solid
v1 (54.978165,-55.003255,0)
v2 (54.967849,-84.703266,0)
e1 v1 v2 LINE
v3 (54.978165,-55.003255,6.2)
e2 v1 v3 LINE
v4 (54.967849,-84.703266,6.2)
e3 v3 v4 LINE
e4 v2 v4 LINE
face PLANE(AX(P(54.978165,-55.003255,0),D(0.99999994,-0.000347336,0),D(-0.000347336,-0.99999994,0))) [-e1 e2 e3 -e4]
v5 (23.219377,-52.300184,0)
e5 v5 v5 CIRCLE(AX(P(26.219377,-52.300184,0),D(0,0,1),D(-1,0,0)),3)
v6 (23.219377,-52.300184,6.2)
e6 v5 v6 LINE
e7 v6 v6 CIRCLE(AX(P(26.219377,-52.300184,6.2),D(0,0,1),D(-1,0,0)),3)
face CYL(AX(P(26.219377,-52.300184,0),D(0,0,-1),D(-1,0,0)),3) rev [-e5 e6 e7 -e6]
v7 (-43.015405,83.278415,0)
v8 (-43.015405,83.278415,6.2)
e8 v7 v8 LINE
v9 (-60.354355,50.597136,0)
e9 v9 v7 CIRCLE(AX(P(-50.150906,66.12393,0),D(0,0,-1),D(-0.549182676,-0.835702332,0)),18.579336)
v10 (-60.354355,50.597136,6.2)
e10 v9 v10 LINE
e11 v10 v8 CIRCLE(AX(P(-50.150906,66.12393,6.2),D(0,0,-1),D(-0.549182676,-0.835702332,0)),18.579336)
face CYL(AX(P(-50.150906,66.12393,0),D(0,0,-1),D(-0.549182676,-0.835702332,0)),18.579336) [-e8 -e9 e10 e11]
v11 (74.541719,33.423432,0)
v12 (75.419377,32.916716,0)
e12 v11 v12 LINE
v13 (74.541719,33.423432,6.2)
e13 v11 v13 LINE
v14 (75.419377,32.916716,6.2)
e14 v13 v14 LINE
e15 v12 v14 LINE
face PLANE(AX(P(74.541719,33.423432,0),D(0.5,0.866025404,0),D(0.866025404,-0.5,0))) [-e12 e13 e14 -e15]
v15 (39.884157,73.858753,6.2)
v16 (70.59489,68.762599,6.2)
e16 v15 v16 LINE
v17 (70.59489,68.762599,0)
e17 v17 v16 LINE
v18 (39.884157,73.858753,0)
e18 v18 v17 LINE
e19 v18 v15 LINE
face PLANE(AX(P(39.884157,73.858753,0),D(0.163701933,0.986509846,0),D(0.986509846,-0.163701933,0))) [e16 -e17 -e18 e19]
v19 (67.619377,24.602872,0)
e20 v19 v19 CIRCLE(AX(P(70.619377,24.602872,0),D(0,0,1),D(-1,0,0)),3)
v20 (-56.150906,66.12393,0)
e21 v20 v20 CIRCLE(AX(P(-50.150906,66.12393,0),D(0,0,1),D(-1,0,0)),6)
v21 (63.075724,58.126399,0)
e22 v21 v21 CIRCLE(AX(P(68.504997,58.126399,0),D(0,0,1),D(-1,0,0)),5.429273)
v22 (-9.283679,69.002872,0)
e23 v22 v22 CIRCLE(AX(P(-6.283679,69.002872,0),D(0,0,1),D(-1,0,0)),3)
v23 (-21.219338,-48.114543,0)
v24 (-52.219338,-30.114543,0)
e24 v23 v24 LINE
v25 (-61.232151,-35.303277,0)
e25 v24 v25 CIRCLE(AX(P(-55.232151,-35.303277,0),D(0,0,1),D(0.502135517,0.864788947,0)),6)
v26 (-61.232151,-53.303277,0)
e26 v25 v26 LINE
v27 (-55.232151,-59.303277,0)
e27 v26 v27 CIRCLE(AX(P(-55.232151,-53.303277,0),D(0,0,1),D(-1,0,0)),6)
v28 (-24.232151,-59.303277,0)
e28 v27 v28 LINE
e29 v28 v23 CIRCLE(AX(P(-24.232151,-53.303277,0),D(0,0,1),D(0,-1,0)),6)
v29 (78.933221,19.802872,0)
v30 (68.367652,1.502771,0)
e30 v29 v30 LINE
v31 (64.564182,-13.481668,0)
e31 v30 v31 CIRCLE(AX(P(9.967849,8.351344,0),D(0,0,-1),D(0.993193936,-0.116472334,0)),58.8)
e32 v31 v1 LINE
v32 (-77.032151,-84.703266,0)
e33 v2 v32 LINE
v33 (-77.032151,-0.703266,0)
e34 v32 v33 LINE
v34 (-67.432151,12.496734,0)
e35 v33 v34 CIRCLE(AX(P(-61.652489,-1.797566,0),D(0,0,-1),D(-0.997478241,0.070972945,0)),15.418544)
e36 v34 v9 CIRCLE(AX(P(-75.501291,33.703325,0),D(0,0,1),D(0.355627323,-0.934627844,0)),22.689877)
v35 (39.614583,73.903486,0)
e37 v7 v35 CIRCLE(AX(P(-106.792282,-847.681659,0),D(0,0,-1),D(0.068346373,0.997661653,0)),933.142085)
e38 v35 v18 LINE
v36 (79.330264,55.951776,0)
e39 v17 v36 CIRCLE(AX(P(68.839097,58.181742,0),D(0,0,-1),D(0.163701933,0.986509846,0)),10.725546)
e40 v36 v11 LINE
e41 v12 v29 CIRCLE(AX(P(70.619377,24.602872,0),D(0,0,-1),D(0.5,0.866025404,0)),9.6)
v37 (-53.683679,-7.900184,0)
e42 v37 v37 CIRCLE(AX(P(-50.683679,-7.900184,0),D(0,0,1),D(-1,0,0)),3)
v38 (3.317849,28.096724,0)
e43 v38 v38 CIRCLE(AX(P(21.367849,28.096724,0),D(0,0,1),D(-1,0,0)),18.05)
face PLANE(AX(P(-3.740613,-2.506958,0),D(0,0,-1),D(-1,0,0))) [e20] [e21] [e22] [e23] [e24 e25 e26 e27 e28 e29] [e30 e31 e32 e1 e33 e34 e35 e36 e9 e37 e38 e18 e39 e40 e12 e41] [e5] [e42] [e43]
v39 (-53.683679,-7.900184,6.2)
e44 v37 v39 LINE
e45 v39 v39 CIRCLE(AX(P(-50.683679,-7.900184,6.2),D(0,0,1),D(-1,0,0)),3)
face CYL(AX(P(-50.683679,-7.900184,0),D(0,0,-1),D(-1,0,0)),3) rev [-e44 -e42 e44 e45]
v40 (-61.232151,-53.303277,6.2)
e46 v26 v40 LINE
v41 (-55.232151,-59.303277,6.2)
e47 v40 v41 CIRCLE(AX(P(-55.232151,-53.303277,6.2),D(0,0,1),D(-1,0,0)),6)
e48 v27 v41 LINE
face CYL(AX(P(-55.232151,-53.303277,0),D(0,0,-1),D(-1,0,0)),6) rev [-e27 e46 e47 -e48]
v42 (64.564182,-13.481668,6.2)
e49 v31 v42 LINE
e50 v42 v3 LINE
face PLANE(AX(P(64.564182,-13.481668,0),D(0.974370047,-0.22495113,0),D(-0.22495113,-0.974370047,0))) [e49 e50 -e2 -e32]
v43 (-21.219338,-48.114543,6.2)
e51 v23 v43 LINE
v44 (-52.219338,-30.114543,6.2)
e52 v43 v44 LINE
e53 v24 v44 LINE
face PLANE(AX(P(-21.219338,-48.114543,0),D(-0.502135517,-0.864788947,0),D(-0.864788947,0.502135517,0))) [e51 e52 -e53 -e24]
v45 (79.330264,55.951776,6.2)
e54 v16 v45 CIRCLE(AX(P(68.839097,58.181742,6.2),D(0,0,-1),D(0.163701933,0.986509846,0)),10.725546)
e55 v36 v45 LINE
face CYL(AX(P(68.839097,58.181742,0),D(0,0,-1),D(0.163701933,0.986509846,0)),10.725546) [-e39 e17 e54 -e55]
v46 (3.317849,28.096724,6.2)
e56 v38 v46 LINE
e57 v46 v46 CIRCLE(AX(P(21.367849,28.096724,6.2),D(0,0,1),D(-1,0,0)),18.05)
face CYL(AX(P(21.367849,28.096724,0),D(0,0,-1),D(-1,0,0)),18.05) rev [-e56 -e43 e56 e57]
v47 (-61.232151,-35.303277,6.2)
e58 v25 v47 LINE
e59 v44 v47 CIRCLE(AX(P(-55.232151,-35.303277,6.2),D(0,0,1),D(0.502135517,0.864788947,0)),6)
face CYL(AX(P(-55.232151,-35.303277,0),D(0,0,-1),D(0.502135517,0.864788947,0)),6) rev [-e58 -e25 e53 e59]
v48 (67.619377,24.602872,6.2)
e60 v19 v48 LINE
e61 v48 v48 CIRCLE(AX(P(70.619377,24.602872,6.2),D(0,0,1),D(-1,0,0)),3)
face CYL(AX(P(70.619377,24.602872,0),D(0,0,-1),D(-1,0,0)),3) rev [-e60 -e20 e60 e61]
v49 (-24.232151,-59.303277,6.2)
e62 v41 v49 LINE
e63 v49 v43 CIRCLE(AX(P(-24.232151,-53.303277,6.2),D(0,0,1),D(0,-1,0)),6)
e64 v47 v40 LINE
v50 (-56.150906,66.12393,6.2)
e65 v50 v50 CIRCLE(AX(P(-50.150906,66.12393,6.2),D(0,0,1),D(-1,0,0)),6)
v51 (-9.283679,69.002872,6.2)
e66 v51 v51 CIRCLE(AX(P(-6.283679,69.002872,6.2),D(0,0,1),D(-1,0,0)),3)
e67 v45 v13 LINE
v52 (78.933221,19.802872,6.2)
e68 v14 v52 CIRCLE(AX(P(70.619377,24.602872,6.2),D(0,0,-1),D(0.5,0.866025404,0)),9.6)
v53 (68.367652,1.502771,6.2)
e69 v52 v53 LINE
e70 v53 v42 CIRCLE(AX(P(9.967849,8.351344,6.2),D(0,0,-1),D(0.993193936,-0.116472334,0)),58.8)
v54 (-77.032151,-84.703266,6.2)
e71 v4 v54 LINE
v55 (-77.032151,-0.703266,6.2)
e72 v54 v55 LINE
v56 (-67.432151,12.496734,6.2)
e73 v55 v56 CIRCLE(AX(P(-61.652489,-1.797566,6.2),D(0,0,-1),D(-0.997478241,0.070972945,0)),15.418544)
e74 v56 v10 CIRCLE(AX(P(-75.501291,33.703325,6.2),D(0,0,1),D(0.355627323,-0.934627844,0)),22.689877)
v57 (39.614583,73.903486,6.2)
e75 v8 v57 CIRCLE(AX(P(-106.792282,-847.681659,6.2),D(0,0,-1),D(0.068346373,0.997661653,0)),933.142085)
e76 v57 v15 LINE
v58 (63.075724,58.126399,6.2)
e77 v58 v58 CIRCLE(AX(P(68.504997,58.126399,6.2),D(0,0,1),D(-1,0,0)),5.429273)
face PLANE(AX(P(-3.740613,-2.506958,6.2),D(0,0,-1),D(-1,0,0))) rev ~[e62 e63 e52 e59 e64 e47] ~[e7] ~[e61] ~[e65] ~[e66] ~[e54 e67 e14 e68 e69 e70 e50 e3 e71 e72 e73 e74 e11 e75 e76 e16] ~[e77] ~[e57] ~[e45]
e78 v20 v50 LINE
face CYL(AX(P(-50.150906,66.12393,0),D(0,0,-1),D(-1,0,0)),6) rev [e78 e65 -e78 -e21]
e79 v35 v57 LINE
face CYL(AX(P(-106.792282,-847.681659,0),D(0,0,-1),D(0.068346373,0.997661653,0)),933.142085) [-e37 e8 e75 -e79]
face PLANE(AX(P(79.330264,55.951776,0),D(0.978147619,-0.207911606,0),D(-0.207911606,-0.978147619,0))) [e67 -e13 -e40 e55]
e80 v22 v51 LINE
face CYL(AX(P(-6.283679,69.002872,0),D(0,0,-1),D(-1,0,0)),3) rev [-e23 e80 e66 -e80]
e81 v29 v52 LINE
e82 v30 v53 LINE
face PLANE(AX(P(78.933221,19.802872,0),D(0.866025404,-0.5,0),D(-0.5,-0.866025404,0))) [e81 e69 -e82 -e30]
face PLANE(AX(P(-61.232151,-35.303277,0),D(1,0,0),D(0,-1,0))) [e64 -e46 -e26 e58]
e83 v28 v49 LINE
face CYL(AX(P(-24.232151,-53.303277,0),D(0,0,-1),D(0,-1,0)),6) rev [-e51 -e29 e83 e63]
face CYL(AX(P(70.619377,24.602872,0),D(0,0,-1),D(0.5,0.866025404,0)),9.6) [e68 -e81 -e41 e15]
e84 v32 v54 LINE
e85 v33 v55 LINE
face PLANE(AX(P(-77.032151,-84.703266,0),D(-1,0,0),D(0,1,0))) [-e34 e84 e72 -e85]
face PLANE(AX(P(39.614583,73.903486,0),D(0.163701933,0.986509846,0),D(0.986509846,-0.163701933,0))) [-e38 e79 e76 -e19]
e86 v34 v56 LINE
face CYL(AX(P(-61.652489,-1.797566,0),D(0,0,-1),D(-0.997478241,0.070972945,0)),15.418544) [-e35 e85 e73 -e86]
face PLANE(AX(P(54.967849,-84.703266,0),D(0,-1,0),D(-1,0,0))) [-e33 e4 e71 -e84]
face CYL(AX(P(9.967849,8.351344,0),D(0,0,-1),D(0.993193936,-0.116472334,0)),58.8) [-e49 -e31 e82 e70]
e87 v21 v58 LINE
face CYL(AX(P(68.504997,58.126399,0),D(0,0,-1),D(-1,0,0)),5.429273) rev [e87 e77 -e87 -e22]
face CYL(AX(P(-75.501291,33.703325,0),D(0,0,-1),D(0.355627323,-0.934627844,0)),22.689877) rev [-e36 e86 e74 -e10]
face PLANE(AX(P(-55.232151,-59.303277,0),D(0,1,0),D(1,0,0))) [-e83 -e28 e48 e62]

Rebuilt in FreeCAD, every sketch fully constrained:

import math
import FreeCAD as App
import Part
import Sketcher

V = App.Vector
Q = App.Units.Quantity

doc = App.newDocument("Part")
body = doc.addObject("PartDesign::Body", "Body")

sketch1 = body.newObject("Sketcher::SketchObject", "Sketch")
sketch1.AttachmentSupport = (doc.getObject("XY_Plane"), [""])
sketch1.MapMode = "FlatFace"
sketch1.addGeometry([
    Part.LineSegment(V(39.88, 73.86, 0), V(39.61, 73.9, 0)),
    Part.ArcOfCircle(Part.Circle(V(-106.79, -847.68, 0), V(0, 0, 1), 933.14), math.radians(80.97), math.radians(86.08)),
    Part.ArcOfCircle(Part.Circle(V(-50.15, 66.12, 0), V(0, 0, 1), 18.58), math.radians(67), math.radians(237)),
    Part.ArcOfCircle(Part.Circle(V(-75.5, 33.7, 0), V(0, 0, 1), 22.69), math.radians(-69), math.radians(48)),
    Part.ArcOfCircle(Part.Circle(V(-61.65, -1.8, 0), V(0, 0, 1), 15.42), math.radians(112), math.radians(176)),
    Part.LineSegment(V(-77.03, -0.7, 0), V(-77.03, -84.7, 0)),
    Part.LineSegment(V(-77.03, -84.7, 0), V(54.97, -84.7, 0)),
    Part.LineSegment(V(54.97, -84.7, 0), V(54.98, -55, 0)),
    Part.LineSegment(V(54.98, -55, 0), V(64.56, -13.48, 0)),
    Part.ArcOfCircle(Part.Circle(V(9.97, 8.35, 0), V(0, 0, 1), 58.8), math.radians(-21.8), math.radians(-6.69)),
    Part.LineSegment(V(68.37, 1.5, 0), V(78.93, 19.8, 0)),
    Part.ArcOfCircle(Part.Circle(V(70.62, 24.6, 0), V(0, 0, 1), 9.6), math.radians(-30), math.radians(60)),
    Part.LineSegment(V(75.42, 32.92, 0), V(74.54, 33.42, 0)),
    Part.LineSegment(V(74.54, 33.42, 0), V(79.33, 55.95, 0)),
    Part.ArcOfCircle(Part.Circle(V(68.84, 58.18, 0), V(0, 0, 1), 10.73), math.radians(-12), math.radians(81)),
    Part.LineSegment(V(70.59, 68.76, 0), V(39.88, 73.86, 0)),
    Part.Circle(V(26.22, -52.3, 0), V(0, 0, 1), 3),
    Part.LineSegment(V(-24.23, -59.3, 0), V(-55.23, -59.3, 0)),
    Part.ArcOfCircle(Part.Circle(V(-55.23, -53.3, 0), V(0, 0, 1), 6), math.radians(180), math.radians(270)),
    Part.LineSegment(V(-61.23, -53.3, 0), V(-61.23, -35.3, 0)),
    Part.ArcOfCircle(Part.Circle(V(-55.23, -35.3, 0), V(0, 0, 1), 6), math.radians(60), math.radians(180)),
    Part.LineSegment(V(-52.22, -30.11, 0), V(-21.22, -48.11, 0)),
    Part.ArcOfCircle(Part.Circle(V(-24.23, -53.3, 0), V(0, 0, 1), 6), math.radians(-90), math.radians(60)),
    Part.Circle(V(-50.68, -7.9, 0), V(0, 0, 1), 3),
    Part.Circle(V(70.62, 24.6, 0), V(0, 0, 1), 3),
    Part.Circle(V(21.37, 28.1, 0), V(0, 0, 1), 18.05),
    Part.Circle(V(68.5, 58.13, 0), V(0, 0, 1), 5.43),
    Part.Circle(V(-6.28, 69, 0), V(0, 0, 1), 3),
    Part.Circle(V(-50.15, 66.12, 0), V(0, 0, 1), 6),
], False)
sketch1.addConstraint([
    Sketcher.Constraint("Coincident", 0, 2, 1, 1),
    Sketcher.Constraint("Coincident", 1, 2, 2, 1),
    Sketcher.Constraint("Coincident", 2, 2, 3, 2),
    Sketcher.Constraint("Coincident", 3, 1, 4, 1),
    Sketcher.Constraint("Coincident", 4, 2, 5, 1),
    Sketcher.Constraint("Coincident", 5, 2, 6, 1),
    Sketcher.Constraint("Coincident", 6, 2, 7, 1),
    Sketcher.Constraint("Coincident", 7, 2, 8, 1),
    Sketcher.Constraint("Coincident", 8, 2, 9, 1),
    Sketcher.Constraint("Coincident", 9, 2, 10, 1),
    Sketcher.Constraint("Tangent", 10, 2, 11, 1),
    Sketcher.Constraint("Tangent", 11, 2, 12, 1),
    Sketcher.Constraint("Coincident", 12, 2, 13, 1),
    Sketcher.Constraint("Tangent", 13, 2, 14, 1),
    Sketcher.Constraint("Tangent", 14, 2, 15, 1),
    Sketcher.Constraint("Coincident", 15, 2, 0, 1),
    Sketcher.Constraint("Tangent", 17, 2, 18, 2),
    Sketcher.Constraint("Tangent", 18, 1, 19, 1),
    Sketcher.Constraint("Tangent", 19, 2, 20, 2),
    Sketcher.Constraint("Tangent", 20, 1, 21, 1),
    Sketcher.Constraint("Tangent", 21, 2, 22, 2),
    Sketcher.Constraint("Tangent", 22, 1, 17, 1),
    Sketcher.Constraint("Vertical", 5),
    Sketcher.Constraint("Horizontal", 6),
    Sketcher.Constraint("Horizontal", 17),
    Sketcher.Constraint("Vertical", 19),
    Sketcher.Constraint("Coincident", 24, 3, 11, 3),
    Sketcher.Constraint("Coincident", 28, 3, 2, 3),
    Sketcher.Constraint("Equal", 18, 20),
    Sketcher.Constraint("Equal", 20, 22),
    Sketcher.Constraint("Equal", 16, 23),
    Sketcher.Constraint("Equal", 23, 24),
    Sketcher.Constraint("Equal", 24, 27),
    Sketcher.Constraint("Equal", 22, 28),
    Sketcher.Constraint("Perpendicular", 10, 12),
    Sketcher.Constraint("Parallel", 0, 15),
    Sketcher.Constraint("Diameter", 16, Q("6 mm")),
    Sketcher.Constraint("Diameter", 28, Q("12 mm")),
    Sketcher.Constraint("Diameter", 25, Q("36.1 mm")),
    Sketcher.Constraint("Radius", 9, Q("58.8 mm")),
    Sketcher.Constraint("Radius", 11, Q("9.6 mm")),
    Sketcher.Constraint("DistanceX", 6, 1, 6, 2, Q("132 mm")),
    Sketcher.Constraint("DistanceX", 17, 2, 17, 1, Q("31 mm")),
    Sketcher.Constraint("DistanceY", 5, 2, 5, 1, Q("84 mm")),
    Sketcher.Constraint("DistanceY", 19, 1, 19, 2, Q("18 mm")),
    Sketcher.Constraint("Angle", 8, Q("76.999996 deg")),
    Sketcher.Constraint("Angle", 10, Q("60 deg")),
    Sketcher.Constraint("Angle", 13, Q("78.000005 deg")),
    Sketcher.Constraint("DistanceX", 9, 3, 6, 2, Q("45 mm")),
    Sketcher.Constraint("DistanceX", 16, 3, 11, 3, Q("44.4 mm")),
    Sketcher.Constraint("DistanceX", 18, 3, 9, 3, Q("65.2 mm")),
    Sketcher.Constraint("DistanceX", 9, 3, 25, 3, Q("11.4 mm")),
    Sketcher.Constraint("DistanceX", 3, 1, 20, 3, Q("12.2 mm")),
    Sketcher.Constraint("DistanceY", 4, 2, 3, 1, Q("13.2 mm")),
    Sketcher.Constraint("Diameter", 26, Q("10.858546 mm")),
    Sketcher.Constraint("Radius", 1, Q("933.142085 mm")),
    Sketcher.Constraint("Radius", 2, Q("18.579336 mm")),
    Sketcher.Constraint("Radius", 3, Q("22.689877 mm")),
    Sketcher.Constraint("Radius", 4, Q("15.418544 mm")),
    Sketcher.Constraint("Radius", 14, Q("10.725546 mm")),
    Sketcher.Constraint("DistanceY", -1, 1, 26, 3, Q("58.126399 mm")),
    Sketcher.Constraint("DistanceY", -1, 1, 14, 2, Q("68.762599 mm")),
    Sketcher.Constraint("DistanceY", 18, 3, 3, 3, Q("87.006602 mm")),
    Sketcher.Constraint("DistanceX", 26, 3, 14, 3, Q("0.3341 mm")),
    Sketcher.Constraint("DistanceX", 28, 3, 1, 2, Q("7.135501 mm")),
    Sketcher.Constraint("DistanceY", 4, 3, 2, 2, Q("52.394702 mm")),
    Sketcher.Constraint("DistanceY", 7, 2, 9, 3, Q("63.3546 mm")),
    Sketcher.Constraint("DistanceY", 9, 2, 11, 3, Q("23.100101 mm")),
    Sketcher.Constraint("DistanceX", 12, 2, 10, 2, Q("4.391502 mm")),
    Sketcher.Constraint("Distance", 0, Q("0.273261 mm")),
    Sketcher.Constraint("Distance", 13, Q("23.03164 mm")),
    Sketcher.Constraint("Distance", 15, Q("31.13069 mm")),
    Sketcher.Constraint("DistanceX", 1, 3, -1, 1, Q("106.792282 mm")),
    Sketcher.Constraint("DistanceY", 1, 3, -1, 1, Q("847.681659 mm")),
    Sketcher.Constraint("DistanceY", -1, 1, 2, 3, Q("66.12393 mm")),
    Sketcher.Constraint("DistanceX", 3, 3, -1, 1, Q("75.501291 mm")),
    Sketcher.Constraint("DistanceX", 4, 3, -1, 1, Q("61.652489 mm")),
    Sketcher.Constraint("DistanceX", 23, 3, -1, 1, Q("50.683679 mm")),
    Sketcher.Constraint("DistanceX", 27, 3, -1, 1, Q("6.283679 mm")),
    Sketcher.Constraint("DistanceX", -1, 1, 10, 2, Q("78.933221 mm")),
    Sketcher.Constraint("DistanceY", 16, 3, 4, 3, Q("50.502618 mm")),
    Sketcher.Constraint("DistanceY", 23, 3, 4, 3, Q("6.102618 mm")),
    Sketcher.Constraint("DistanceY", 9, 3, 25, 3, Q("19.745379 mm")),
    Sketcher.Constraint("DistanceY", 2, 3, 27, 3, Q("2.878942 mm")),
    Sketcher.Constraint("DistanceY", 8, 2, 11, 3, Q("38.08454 mm")),
])
pad1 = body.newObject("PartDesign::Pad", "Pad")
pad1.Profile = sketch1
pad1.Length = 6.2

doc.recompute()
